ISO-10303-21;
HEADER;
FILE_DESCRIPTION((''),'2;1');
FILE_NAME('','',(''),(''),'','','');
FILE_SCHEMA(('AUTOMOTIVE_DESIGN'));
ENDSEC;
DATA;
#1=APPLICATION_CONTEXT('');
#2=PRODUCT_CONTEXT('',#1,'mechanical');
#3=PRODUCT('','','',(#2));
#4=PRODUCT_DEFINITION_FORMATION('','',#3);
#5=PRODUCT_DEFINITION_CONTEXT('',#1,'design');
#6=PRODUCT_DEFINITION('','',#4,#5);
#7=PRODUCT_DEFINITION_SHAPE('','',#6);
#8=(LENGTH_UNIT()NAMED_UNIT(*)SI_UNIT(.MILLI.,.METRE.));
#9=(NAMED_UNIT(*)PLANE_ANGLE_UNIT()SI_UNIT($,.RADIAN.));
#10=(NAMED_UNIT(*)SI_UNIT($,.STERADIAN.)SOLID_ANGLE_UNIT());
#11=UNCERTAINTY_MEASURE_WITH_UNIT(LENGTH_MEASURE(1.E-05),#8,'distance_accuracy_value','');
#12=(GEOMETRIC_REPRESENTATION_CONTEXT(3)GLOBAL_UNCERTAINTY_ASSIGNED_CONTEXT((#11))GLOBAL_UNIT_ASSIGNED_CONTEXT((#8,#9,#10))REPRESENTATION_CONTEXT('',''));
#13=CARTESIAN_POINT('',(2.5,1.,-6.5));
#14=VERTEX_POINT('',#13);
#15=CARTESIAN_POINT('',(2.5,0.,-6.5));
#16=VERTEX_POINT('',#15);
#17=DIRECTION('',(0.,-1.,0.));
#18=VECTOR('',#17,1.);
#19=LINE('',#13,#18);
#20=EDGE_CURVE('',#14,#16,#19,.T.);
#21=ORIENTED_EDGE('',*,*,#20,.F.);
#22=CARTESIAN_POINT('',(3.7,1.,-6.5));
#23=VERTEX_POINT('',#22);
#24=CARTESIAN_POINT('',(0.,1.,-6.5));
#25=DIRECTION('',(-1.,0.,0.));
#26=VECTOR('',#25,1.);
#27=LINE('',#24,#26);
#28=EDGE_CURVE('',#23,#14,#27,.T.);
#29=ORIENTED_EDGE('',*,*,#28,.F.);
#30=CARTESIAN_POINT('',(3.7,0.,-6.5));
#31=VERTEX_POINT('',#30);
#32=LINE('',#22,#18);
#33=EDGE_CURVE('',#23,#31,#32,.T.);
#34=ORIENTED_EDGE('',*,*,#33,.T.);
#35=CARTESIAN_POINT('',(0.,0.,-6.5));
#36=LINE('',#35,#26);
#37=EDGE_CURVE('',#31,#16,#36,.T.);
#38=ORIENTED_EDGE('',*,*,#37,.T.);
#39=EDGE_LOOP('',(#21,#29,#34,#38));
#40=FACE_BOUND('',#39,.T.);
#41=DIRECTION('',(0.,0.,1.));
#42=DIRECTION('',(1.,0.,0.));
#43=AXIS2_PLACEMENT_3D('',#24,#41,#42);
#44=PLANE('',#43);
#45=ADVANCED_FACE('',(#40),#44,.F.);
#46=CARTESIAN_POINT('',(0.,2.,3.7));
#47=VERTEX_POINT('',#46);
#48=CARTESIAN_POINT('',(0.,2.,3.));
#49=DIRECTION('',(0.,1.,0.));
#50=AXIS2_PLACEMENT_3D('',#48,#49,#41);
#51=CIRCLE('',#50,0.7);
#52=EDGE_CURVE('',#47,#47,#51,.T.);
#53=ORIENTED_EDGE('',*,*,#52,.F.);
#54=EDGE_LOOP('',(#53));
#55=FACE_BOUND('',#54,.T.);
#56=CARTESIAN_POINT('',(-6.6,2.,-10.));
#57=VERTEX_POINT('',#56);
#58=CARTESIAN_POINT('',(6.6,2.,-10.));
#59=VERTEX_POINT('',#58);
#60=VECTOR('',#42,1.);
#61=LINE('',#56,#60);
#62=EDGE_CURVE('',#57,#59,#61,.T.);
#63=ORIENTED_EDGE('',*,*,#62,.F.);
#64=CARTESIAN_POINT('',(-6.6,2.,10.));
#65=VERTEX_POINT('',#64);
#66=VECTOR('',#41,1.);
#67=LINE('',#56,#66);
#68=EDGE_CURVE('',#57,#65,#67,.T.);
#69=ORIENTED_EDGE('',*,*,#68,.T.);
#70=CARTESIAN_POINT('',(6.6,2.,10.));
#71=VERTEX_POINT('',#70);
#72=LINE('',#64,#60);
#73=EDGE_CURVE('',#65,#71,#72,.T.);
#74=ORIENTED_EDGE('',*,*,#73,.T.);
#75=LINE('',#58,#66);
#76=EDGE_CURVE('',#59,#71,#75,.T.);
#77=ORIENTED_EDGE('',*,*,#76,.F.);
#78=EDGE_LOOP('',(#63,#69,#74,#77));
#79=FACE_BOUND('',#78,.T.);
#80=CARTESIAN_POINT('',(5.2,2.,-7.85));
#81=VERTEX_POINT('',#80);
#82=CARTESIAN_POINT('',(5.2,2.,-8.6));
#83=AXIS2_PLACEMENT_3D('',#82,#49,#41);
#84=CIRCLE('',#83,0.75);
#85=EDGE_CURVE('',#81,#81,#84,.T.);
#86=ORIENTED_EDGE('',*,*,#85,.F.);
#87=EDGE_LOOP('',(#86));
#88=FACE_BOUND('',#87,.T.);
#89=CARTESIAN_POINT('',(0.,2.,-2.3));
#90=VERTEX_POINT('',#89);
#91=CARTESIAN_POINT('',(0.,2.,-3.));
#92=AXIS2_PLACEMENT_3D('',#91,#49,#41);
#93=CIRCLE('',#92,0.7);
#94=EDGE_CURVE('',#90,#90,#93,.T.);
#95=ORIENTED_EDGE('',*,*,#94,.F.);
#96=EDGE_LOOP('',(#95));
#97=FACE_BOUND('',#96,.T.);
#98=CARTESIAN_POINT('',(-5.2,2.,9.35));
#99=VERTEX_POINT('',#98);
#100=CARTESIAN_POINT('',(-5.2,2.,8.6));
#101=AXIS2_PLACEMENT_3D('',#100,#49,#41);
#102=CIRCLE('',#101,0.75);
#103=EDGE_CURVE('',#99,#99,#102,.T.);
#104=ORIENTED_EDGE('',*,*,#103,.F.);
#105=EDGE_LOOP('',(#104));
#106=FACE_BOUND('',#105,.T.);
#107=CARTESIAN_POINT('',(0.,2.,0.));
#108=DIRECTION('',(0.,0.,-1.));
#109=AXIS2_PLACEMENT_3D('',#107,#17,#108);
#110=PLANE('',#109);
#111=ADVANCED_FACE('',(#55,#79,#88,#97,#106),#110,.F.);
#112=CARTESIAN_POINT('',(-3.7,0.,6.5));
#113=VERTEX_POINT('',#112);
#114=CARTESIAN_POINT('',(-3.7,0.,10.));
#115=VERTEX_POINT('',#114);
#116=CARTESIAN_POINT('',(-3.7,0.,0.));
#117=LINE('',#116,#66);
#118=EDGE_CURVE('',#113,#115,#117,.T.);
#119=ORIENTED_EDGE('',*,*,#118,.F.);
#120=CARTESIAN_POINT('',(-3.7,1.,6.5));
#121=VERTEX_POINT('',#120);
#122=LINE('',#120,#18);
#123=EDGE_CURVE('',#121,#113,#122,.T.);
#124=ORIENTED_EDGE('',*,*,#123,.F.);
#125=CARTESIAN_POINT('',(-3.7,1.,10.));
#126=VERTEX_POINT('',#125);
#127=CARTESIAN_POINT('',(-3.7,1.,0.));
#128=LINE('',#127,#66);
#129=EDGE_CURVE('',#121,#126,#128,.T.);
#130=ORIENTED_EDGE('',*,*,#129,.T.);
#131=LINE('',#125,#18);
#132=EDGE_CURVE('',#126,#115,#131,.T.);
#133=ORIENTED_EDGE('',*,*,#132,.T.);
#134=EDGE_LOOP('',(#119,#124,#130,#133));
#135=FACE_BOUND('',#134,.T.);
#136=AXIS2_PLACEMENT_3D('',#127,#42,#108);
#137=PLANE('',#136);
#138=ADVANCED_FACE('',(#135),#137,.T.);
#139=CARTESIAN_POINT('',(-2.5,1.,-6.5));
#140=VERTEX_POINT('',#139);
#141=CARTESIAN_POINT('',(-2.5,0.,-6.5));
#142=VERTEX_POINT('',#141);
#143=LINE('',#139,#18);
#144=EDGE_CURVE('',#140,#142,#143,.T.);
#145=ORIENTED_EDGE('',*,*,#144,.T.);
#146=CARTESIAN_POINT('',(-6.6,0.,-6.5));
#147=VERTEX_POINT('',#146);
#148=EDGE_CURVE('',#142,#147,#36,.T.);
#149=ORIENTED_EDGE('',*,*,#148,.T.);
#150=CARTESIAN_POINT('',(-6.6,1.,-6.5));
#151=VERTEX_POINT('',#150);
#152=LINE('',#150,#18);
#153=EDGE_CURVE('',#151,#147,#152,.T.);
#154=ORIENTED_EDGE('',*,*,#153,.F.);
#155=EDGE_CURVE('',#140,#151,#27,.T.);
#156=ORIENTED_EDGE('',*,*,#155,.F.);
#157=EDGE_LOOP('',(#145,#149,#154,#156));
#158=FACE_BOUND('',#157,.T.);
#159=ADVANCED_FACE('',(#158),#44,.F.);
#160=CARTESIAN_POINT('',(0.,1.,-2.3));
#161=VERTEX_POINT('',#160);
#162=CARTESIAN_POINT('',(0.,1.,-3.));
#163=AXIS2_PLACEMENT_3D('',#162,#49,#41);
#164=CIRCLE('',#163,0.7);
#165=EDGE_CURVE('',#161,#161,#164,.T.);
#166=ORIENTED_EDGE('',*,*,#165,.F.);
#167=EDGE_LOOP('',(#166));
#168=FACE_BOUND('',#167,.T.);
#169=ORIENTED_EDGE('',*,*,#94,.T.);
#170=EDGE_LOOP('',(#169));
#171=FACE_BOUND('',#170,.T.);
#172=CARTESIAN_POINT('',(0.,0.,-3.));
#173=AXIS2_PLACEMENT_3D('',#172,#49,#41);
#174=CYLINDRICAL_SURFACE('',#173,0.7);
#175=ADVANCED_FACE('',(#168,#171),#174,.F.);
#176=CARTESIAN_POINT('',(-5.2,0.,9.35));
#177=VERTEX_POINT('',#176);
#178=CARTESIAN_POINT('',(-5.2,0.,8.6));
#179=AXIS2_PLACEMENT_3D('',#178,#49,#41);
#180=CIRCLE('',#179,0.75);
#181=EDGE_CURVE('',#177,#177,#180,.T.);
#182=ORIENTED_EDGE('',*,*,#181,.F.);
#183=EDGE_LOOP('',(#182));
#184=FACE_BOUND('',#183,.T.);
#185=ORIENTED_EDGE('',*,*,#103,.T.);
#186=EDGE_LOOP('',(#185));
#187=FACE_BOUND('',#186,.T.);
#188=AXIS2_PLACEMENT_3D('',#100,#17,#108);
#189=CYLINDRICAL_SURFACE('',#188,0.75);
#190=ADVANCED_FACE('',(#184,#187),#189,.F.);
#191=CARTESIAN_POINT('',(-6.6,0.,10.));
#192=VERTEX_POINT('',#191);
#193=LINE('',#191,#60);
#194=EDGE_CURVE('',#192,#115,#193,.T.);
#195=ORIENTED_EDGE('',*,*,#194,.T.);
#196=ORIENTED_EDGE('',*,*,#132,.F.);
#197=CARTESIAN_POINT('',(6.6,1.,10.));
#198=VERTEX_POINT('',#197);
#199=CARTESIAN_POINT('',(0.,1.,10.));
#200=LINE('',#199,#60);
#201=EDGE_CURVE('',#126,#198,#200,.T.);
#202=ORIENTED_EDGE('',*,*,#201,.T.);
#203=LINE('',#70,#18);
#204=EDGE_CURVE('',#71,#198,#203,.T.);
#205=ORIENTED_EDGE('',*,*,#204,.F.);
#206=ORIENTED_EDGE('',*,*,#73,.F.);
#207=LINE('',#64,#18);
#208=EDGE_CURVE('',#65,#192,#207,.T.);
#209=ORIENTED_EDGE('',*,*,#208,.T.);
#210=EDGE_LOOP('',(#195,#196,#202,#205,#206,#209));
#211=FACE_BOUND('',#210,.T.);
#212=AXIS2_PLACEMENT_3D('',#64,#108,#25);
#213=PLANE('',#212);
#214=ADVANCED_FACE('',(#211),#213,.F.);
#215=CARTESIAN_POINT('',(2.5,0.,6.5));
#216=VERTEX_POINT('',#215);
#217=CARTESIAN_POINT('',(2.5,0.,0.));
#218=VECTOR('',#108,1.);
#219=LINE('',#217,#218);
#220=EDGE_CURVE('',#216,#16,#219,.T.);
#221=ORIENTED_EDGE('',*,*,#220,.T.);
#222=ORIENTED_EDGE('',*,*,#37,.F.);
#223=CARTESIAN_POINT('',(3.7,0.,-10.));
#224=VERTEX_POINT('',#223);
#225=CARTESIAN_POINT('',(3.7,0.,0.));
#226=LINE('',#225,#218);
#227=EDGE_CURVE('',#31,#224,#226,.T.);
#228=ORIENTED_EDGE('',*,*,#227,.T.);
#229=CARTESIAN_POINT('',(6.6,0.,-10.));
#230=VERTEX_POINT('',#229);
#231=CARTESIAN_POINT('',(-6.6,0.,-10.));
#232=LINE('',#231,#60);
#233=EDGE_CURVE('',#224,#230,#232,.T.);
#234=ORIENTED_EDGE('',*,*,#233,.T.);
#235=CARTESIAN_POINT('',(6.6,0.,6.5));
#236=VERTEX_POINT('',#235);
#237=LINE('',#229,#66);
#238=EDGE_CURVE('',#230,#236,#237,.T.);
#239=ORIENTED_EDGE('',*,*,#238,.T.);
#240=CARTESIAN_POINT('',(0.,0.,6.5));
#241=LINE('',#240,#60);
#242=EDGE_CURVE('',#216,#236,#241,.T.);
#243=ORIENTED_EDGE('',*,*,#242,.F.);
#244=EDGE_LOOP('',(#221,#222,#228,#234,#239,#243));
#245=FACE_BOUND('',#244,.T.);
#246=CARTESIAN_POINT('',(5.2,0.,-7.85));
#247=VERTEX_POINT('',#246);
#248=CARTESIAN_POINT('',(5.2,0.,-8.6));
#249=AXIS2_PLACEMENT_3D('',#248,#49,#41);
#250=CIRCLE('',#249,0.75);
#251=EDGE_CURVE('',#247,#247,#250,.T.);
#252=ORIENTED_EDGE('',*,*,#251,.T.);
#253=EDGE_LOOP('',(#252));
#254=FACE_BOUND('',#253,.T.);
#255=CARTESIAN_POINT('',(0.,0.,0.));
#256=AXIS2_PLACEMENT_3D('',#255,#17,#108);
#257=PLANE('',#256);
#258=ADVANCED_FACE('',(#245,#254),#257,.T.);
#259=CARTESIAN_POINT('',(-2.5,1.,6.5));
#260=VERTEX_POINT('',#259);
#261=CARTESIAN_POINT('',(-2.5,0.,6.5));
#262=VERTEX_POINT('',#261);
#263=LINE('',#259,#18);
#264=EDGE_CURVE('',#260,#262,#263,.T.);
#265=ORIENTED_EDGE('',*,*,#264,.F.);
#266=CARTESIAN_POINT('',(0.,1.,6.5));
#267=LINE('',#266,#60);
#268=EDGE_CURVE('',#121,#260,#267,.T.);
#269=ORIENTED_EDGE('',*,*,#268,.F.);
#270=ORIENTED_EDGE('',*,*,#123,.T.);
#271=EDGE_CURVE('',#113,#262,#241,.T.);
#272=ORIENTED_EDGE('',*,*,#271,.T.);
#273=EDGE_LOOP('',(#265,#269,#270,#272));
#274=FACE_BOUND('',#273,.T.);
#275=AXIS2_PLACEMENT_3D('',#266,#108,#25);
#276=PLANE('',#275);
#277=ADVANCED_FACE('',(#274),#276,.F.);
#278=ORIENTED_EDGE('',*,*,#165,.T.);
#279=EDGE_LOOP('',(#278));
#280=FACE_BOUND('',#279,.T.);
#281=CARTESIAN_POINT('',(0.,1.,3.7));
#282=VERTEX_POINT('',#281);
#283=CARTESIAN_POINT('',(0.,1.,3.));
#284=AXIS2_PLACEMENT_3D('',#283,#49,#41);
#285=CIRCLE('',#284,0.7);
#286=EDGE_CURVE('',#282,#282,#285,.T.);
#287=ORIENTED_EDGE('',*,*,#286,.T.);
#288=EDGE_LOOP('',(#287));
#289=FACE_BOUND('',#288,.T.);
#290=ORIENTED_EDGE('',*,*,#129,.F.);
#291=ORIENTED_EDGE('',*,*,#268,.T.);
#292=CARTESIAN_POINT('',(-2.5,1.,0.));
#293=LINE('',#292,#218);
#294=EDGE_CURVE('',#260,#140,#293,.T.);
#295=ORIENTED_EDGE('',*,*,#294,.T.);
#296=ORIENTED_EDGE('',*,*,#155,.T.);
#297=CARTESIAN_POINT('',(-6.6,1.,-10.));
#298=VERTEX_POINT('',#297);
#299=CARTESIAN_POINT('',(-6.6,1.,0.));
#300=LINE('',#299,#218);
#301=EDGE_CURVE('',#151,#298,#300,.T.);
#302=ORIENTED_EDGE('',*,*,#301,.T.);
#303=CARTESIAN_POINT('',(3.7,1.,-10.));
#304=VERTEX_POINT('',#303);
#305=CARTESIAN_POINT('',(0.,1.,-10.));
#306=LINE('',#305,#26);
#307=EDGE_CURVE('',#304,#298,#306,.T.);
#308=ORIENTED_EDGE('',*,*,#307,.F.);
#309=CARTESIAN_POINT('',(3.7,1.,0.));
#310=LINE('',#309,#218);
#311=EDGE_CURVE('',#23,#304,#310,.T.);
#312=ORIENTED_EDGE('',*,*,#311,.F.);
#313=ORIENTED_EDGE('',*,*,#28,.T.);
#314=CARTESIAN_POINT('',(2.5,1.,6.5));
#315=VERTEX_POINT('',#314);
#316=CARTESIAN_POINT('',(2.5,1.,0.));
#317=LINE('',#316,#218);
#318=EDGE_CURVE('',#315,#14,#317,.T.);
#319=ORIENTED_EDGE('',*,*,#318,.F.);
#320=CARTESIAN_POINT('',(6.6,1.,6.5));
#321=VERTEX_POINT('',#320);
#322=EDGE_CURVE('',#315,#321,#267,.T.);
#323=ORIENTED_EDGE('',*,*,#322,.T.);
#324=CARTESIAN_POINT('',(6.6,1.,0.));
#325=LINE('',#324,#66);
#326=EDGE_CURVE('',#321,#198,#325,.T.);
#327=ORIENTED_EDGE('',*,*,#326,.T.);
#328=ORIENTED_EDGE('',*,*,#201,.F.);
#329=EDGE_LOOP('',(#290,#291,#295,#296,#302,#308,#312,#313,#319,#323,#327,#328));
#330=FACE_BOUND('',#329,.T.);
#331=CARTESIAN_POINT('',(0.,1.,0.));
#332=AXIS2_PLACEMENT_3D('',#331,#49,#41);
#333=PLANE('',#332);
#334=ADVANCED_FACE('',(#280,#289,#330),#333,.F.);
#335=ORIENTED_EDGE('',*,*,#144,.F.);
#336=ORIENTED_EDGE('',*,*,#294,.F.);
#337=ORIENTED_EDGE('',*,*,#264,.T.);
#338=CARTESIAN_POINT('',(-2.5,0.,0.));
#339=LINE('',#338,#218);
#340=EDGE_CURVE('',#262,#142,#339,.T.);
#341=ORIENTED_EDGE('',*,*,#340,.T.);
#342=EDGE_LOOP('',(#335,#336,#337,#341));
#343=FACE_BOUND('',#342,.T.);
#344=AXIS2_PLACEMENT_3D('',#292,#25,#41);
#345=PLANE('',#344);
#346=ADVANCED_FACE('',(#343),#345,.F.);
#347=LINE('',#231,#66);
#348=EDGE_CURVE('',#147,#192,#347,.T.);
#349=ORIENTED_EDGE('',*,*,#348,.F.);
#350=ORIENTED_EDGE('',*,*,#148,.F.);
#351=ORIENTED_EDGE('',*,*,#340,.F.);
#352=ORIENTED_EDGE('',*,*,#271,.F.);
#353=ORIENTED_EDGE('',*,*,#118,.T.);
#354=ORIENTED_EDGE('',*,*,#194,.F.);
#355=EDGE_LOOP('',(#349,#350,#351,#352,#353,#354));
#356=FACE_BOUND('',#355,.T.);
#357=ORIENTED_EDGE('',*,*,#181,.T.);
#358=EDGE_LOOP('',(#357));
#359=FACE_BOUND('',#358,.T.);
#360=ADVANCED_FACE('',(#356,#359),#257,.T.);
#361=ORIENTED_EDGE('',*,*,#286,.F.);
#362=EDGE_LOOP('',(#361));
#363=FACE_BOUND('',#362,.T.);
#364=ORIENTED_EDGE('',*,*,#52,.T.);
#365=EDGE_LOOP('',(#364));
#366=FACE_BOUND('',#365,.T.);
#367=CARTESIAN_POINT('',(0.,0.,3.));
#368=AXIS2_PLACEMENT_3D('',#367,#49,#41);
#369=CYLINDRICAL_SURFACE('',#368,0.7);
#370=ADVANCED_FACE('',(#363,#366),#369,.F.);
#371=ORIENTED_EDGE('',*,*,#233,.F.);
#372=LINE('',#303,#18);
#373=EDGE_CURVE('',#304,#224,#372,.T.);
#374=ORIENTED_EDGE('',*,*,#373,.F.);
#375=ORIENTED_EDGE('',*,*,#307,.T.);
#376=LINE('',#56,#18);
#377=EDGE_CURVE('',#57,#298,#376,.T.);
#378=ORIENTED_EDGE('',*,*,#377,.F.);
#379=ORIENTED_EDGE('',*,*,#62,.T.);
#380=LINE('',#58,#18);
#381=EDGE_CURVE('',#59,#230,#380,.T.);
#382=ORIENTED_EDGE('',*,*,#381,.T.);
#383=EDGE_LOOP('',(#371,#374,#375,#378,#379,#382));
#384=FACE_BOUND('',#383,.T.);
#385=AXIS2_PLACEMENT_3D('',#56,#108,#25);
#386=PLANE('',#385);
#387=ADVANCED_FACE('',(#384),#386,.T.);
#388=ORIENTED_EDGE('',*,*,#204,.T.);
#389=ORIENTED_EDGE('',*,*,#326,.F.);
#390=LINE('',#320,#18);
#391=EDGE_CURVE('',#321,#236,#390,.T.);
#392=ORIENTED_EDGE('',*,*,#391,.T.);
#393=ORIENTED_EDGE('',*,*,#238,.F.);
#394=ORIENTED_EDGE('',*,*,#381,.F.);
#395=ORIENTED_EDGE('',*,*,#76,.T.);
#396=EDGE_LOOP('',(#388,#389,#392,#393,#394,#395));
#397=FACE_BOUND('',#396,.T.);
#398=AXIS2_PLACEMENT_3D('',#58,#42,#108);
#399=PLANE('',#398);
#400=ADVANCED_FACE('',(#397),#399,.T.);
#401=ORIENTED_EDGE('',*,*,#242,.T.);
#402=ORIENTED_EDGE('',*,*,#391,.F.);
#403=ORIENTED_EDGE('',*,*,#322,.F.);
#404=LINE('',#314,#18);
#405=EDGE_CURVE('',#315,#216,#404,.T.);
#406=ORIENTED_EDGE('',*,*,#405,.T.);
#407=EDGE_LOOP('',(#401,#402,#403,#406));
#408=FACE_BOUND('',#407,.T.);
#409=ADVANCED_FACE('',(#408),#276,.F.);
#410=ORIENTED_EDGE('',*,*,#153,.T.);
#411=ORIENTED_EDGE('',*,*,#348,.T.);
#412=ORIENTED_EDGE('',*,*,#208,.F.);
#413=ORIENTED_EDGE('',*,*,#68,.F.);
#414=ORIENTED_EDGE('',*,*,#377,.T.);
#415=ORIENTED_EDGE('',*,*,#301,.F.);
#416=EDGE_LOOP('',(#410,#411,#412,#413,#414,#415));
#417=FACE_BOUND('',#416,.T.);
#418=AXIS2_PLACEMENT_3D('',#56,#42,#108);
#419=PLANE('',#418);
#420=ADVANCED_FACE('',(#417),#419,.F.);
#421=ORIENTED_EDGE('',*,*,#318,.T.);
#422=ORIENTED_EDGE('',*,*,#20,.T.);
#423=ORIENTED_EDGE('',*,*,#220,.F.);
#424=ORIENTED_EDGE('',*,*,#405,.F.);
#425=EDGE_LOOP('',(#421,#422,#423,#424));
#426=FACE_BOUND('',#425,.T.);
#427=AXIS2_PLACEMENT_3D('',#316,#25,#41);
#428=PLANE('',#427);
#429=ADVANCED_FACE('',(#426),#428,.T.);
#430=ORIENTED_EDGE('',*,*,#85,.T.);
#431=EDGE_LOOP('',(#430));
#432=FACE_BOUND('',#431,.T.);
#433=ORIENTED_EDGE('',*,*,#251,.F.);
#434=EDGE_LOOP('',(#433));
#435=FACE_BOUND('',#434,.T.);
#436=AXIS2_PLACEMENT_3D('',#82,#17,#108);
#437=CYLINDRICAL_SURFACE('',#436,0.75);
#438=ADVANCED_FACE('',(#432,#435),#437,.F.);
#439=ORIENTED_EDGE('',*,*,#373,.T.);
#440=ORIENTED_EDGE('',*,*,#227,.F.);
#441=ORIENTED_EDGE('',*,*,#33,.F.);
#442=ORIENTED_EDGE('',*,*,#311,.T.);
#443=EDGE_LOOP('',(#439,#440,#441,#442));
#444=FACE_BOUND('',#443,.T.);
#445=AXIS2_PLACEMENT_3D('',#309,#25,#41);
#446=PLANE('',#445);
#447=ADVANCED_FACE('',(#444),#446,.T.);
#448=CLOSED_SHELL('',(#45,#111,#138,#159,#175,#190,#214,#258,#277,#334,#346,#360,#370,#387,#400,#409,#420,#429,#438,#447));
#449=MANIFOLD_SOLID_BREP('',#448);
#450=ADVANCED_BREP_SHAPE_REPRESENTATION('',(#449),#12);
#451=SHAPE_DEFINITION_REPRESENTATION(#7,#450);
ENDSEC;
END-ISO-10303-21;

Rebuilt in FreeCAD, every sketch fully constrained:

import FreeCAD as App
import Part
import Sketcher

V = App.Vector
Q = App.Units.Quantity


def add_polygon(sketch, points):
    """Adds a closed chain of lines whose ends are joined by coincident constraints."""
    first, n = sketch.GeometryCount, len(points)
    for a, b in zip(points, points[1:] + points[:1]):
        sketch.addGeometry(Part.LineSegment(App.Vector(*a, 0), App.Vector(*b, 0)), False)
    for i in range(n):
        sketch.addConstraint(Sketcher.Constraint("Coincident", first + i, 2, first + (i + 1) % n, 1))

doc = App.newDocument("Part")
body = doc.addObject("PartDesign::Body", "Body")

sketch1 = body.newObject("Sketcher::SketchObject", "Sketch")
sketch1.AttachmentSupport = (doc.getObject("XZ_Plane"), [""])
sketch1.MapMode = "FlatFace"
add_polygon(sketch1, [(-7, -10), (-7, 10), (7, 10), (7, -10)])
sketch1.addConstraint([
    Sketcher.Constraint("Vertical", 0),
    Sketcher.Constraint("Horizontal", 1),
    Sketcher.Constraint("Vertical", 2),
    Sketcher.Constraint("Horizontal", 3),
    Sketcher.Constraint("Symmetric", 0, 2, 2, 2, -1, 1),
    Sketcher.Constraint("DistanceY", 0, 1, 0, 2, Q("20 mm")),
    Sketcher.Constraint("DistanceX", 1, 1, 1, 2, Q("13.2 mm")),
])
pad1 = body.newObject("PartDesign::Pad", "Pad")
pad1.Profile = sketch1
pad1.Length = 2
pad1.Reversed = True

sketch2 = body.newObject("Sketcher::SketchObject", "Sketch001")
sketch2.AttachmentSupport = (doc.getObject("XZ_Plane"), [""])
sketch2.MapMode = "FlatFace"
sketch2.addGeometry([
    Part.Circle(V(-5.2, 8.6, 0), V(0, 0, 1), 0.8),
    Part.Circle(V(5.2, -8.6, 0), V(0, 0, 1), 0.8),
], False)
sketch2.addConstraint([
    Sketcher.Constraint("Equal", 0, 1),
    Sketcher.Constraint("Symmetric", 0, 3, 1, 3, -1, 1),
    Sketcher.Constraint("Diameter", 0, Q("1.5 mm")),
    Sketcher.Constraint("DistanceX", 0, 3, -1, 1, Q("5.2 mm")),
    Sketcher.Constraint("DistanceY", -1, 1, 0, 3, Q("8.6 mm")),
])
pocket1 = body.newObject("PartDesign::Pocket", "Pocket")
pocket1.Profile = sketch2
pocket1.Type = "ThroughAll"

sketch3 = body.newObject("Sketcher::SketchObject", "Sketch002")
sketch3.AttachmentSupport = (doc.getObject("XZ_Plane"), [""])
sketch3.MapMode = "FlatFace"
add_polygon(sketch3, [(3.7, -10), (-6.6, -10), (-6.6, -6.5), (-2.5, -6.5), (-2.5, 6.5), (-3.7, 6.5), (-3.7, 10), (6.6, 10), (6.6, 6.5), (2.5, 6.5), (2.5, -6.5), (3.7, -6.5)])
sketch3.addConstraint([
    Sketcher.Constraint("Horizontal", 0),
    Sketcher.Constraint("Vertical", 1),
    Sketcher.Constraint("Horizontal", 2),
    Sketcher.Constraint("Vertical", 3),
    Sketcher.Constraint("Horizontal", 4),
    Sketcher.Constraint("Vertical", 5),
    Sketcher.Constraint("Horizontal", 6),
    Sketcher.Constraint("Vertical", 7),
    Sketcher.Constraint("Horizontal", 8),
    Sketcher.Constraint("Vertical", 9),
    Sketcher.Constraint("Horizontal", 10),
    Sketcher.Constraint("Vertical", 11),
    Sketcher.Constraint("Symmetric", 0, 2, 6, 2, -1, 1),
    Sketcher.Constraint("Symmetric", 2, 2, 8, 2, -1, 1),
    Sketcher.Constraint("Symmetric", 4, 2, 10, 2, -1, 1),
    Sketcher.Constraint("Horizontal", 4, 2, 7, 2),
    Sketcher.Constraint("DistanceY", 3, 1, 3, 2, Q("13 mm")),
    Sketcher.Constraint("DistanceX", 0, 2, 0, 1, Q("10.3 mm")),
    Sketcher.Constraint("DistanceX", 2, 1, 2, 2, Q("4.1 mm")),
    Sketcher.Constraint("DistanceX", 4, 2, 4, 1, Q("1.2 mm")),
    Sketcher.Constraint("DistanceY", 1, 1, 1, 2, Q("3.5 mm")),
])
pocket2 = body.newObject("PartDesign::Pocket", "Pocket001")
pocket2.Profile = sketch3
pocket2.Length = 1

sketch4 = body.newObject("Sketcher::SketchObject", "Sketch003")
sketch4.AttachmentSupport = (doc.getObject("XZ_Plane"), [""])
sketch4.MapMode = "FlatFace"
sketch4.AttachmentOffset = App.Placement(V(0, 0, -2), App.Rotation())
sketch4.addGeometry([
    Part.Circle(V(0, -3, 0), V(0, 0, 1), 0.7),
    Part.Circle(V(0, 3, 0), V(0, 0, 1), 0.7),
], False)
sketch4.addConstraint([
    Sketcher.Constraint("Equal", 0, 1),
    Sketcher.Constraint("Symmetric", 0, 3, 1, 3, -1, 1),
    Sketcher.Constraint("PointOnObject", 0, 3, -2),
    Sketcher.Constraint("Diameter", 0, Q("1.4 mm")),
    Sketcher.Constraint("DistanceY", 0, 3, -1, 1, Q("3 mm")),
])
pocket3 = body.newObject("PartDesign::Pocket", "Pocket002")
pocket3.Profile = sketch4
pocket3.Type = "ThroughAll"
pocket3.Reversed = True

doc.recompute()
